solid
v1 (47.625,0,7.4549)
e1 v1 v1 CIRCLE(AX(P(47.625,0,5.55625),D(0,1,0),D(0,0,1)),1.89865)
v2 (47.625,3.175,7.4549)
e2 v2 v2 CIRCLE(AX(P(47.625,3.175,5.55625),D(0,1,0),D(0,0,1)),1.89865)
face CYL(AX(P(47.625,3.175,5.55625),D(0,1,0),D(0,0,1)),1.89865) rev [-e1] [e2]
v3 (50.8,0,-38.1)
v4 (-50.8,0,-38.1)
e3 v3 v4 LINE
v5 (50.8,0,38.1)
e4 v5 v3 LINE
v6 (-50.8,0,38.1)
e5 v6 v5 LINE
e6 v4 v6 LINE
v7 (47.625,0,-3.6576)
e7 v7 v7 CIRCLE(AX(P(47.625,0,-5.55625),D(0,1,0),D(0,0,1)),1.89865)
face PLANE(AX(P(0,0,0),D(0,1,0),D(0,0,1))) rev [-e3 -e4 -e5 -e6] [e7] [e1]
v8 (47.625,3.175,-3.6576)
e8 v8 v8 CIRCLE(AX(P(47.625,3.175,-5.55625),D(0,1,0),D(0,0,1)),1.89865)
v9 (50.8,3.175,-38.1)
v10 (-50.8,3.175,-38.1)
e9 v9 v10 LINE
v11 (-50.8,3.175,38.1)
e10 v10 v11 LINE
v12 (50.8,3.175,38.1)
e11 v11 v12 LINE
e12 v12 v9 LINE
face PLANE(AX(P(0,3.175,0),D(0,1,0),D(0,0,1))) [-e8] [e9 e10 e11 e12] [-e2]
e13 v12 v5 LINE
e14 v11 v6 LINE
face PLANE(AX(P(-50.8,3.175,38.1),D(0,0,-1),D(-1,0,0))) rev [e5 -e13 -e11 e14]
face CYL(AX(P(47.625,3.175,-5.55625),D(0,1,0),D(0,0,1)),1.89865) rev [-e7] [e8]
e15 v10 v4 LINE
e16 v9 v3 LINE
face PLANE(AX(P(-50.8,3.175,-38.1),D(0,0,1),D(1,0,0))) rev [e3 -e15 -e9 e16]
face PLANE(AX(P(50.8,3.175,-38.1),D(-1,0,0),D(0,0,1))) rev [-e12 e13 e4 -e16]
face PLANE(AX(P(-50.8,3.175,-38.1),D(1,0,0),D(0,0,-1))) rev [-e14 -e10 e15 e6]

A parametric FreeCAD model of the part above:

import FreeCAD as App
import Part
import Sketcher
Q = App.Units.Quantity


def add_polygon(sketch, points):
    """Adds a closed chain of lines whose ends are joined by coincident constraints."""
    first, n = sketch.GeometryCount, len(points)
    for a, b in zip(points, points[1:] + points[:1]):
        sketch.addGeometry(Part.LineSegment(App.Vector(*a, 0), App.Vector(*b, 0)), False)
    for i in range(n):
        sketch.addConstraint(Sketcher.Constraint("Coincident", first + i, 2, first + (i + 1) % n, 1))

doc = App.newDocument("Part")
body = doc.addObject("PartDesign::Body", "Body")

sketch1 = doc.addObject("Sketcher::SketchObject", "Sketch")
body.addObject(sketch1)
sketch1.AttachmentSupport = (doc.XZ_Plane, [""])
sketch1.MapMode = "FlatFace"
add_polygon(sketch1, [(-51, -38), (-51, 38), (51, 38), (51, -38)])
sketch1.addConstraint([
    Sketcher.Constraint("Vertical", 0),
    Sketcher.Constraint("Horizontal", 1),
    Sketcher.Constraint("Vertical", 2),
    Sketcher.Constraint("Horizontal", 3),
    Sketcher.Constraint("Symmetric", 0, 2, 2, 2, -1, 1),
    Sketcher.Constraint("DistanceX", 1, 1, 1, 2, Q("4 in")),
    Sketcher.Constraint("DistanceY", 0, 1, 0, 2, Q("3 in")),
])
pad1 = doc.addObject("PartDesign::Pad", "Pad")
body.addObject(pad1)
pad1.Profile = sketch1
pad1.Length = Q("0.125 in")
pad1.Reversed = True

sketch2 = doc.addObject("Sketcher::SketchObject", "Sketch001")
body.addObject(sketch2)
sketch2.AttachmentSupport = (doc.XZ_Plane, [""])
sketch2.MapMode = "FlatFace"
sketch2.AttachmentOffset = App.Placement(App.Vector(0, 0, -0.125 * 25.4), App.Rotation())
sketch2.addGeometry([
    Part.Circle(App.Vector(47.6, -5.6, 0), App.Vector(0, 0, 1), 1.9),
    Part.Circle(App.Vector(47.6, 5.6, 0), App.Vector(0, 0, 1), 1.9),
], False)
sketch2.addConstraint([
    Sketcher.Constraint("Equal", 0, 1),
    Sketcher.Constraint("Symmetric", 0, 3, 1, 3, -1),
    Sketcher.Constraint("Diameter", 0, Q("0.1495 in")),
    Sketcher.Constraint("DistanceX", -1, 1, 0, 3, Q("1.875 in")),
    Sketcher.Constraint("DistanceY", 0, 3, -1, 1, Q("0.21875 in")),
])
doc.recompute()
hole = doc.addObject("PartDesign::Hole", "Hole")
body.addObject(hole)
hole.Profile = sketch2
hole.ThreadType = "None"
hole.Diameter = Q("0.1495 in")
hole.DepthType = "Dimension"
hole.Depth = Q("0.5 in")
hole.DrillPoint = "Angled"
hole.DrillPointAngle = 118
hole.Reversed = True

doc.recompute()
